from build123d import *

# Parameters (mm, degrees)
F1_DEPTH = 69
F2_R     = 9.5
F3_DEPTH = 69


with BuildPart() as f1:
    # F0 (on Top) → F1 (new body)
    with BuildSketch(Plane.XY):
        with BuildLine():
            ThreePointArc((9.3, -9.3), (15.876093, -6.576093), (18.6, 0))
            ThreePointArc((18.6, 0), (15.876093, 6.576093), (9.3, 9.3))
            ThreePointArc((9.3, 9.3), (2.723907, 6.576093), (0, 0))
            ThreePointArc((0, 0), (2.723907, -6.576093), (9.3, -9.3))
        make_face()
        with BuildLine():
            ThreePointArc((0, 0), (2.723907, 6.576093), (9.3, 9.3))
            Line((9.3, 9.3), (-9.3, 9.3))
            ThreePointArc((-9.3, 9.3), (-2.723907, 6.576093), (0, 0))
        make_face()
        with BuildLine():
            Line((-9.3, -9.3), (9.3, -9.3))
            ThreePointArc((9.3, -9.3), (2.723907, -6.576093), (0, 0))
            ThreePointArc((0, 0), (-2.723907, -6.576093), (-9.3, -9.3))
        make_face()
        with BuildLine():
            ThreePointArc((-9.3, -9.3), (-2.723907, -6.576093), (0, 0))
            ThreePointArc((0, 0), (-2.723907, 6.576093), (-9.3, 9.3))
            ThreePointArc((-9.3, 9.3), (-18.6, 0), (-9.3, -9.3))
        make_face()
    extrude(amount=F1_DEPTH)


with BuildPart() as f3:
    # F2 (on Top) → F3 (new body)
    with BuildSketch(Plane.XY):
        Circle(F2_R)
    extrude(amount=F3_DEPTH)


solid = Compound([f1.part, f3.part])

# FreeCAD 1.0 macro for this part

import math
import FreeCAD as App
import Part
import Sketcher

V = App.Vector
Q = App.Units.Quantity

doc = App.newDocument("Part")
params = doc.addObject("Spreadsheet::Sheet", "Params")
for row, (alias, value) in enumerate([
    ("sketch1_radius", "9.3 mm"),
    ("sketch1_width", "18.6 mm"),
    ("pad1_length", "69 mm"),
    ("sketch2_diameter", "19 mm"),
    ("pad2_length", "69 mm"),
], start=1):
    params.set(f"A{row}", alias)
    params.set(f"B{row}", "=" + value)
    params.setAlias(f"B{row}", alias)

body = doc.addObject("PartDesign::Body", "Body")

sketch1 = body.newObject("Sketcher::SketchObject", "Sketch")
sketch1.AttachmentSupport = (doc.getObject("XY_Plane"), [""])
sketch1.MapMode = "FlatFace"
sketch1.addGeometry(Part.ArcOfCircle(Part.Circle(V(9, 0, 0), V(0, 0, 1), 9), math.radians(-90), math.radians(0)), False)
sketch1.addGeometry(Part.ArcOfCircle(Part.Circle(V(9, 0, 0), V(0, 0, 1), 9), math.radians(0), math.radians(90)), False)
sketch1.addGeometry(Part.LineSegment(V(9, 9, 0), V(-9, 9, 0)), False)
sketch1.addGeometry(Part.ArcOfCircle(Part.Circle(V(-9, 0, 0), V(0, 0, 1), 9), math.radians(90), math.radians(270)), False)
sketch1.addGeometry(Part.LineSegment(V(-9, -9, 0), V(9, -9, 0)), False)
sketch1.addConstraint(Sketcher.Constraint("Tangent", 0, 2, 1, 1))
sketch1.addConstraint(Sketcher.Constraint("Tangent", 1, 2, 2, 1))
sketch1.addConstraint(Sketcher.Constraint("Tangent", 2, 2, 3, 1))
sketch1.addConstraint(Sketcher.Constraint("Tangent", 3, 2, 4, 1))
sketch1.addConstraint(Sketcher.Constraint("Tangent", 4, 2, 0, 1))
sketch1.addConstraint(Sketcher.Constraint("Horizontal", 2))
sketch1.addConstraint(Sketcher.Constraint("Horizontal", 4))
sketch1.addConstraint(Sketcher.Constraint("Equal", 0, 1))
sketch1.addConstraint(Sketcher.Constraint("Symmetric", 0, 3, 3, 3, -1, 1))
sketch1.addConstraint(Sketcher.Constraint("PointOnObject", 0, 2, -1))
sketch1.addConstraint(Sketcher.Constraint("Radius", 0, Q("9.3 mm")))
sketch1.addConstraint(Sketcher.Constraint("DistanceX", 2, 2, 2, 1, Q("18.6 mm")))
sketch1.setExpression("Constraints[10]", "Params.sketch1_radius")
sketch1.setExpression("Constraints[11]", "Params.sketch1_width")
pad1 = body.newObject("PartDesign::Pad", "Pad")
pad1.Profile = sketch1
pad1.setExpression("Length", "Params.pad1_length")
body2 = doc.addObject("PartDesign::Body", "Body001")

sketch2 = body2.newObject("Sketcher::SketchObject", "Sketch001")
sketch2.AttachmentSupport = (doc.getObject("XY_Plane001"), [""])
sketch2.MapMode = "FlatFace"
sketch2.addGeometry(Part.Circle(V(0, 0, 0), V(0, 0, 1), 10), False)
sketch2.addConstraint(Sketcher.Constraint("Coincident", 0, 3, -1, 1))
sketch2.addConstraint(Sketcher.Constraint("Diameter", 0, Q("19 mm")))
sketch2.setExpression("Constraints[1]", "Params.sketch2_diameter")
pad2 = body2.newObject("PartDesign::Pad", "Pad001")
pad2.Profile = sketch2
pad2.setExpression("Length", "Params.pad2_length")

doc.recompute()
